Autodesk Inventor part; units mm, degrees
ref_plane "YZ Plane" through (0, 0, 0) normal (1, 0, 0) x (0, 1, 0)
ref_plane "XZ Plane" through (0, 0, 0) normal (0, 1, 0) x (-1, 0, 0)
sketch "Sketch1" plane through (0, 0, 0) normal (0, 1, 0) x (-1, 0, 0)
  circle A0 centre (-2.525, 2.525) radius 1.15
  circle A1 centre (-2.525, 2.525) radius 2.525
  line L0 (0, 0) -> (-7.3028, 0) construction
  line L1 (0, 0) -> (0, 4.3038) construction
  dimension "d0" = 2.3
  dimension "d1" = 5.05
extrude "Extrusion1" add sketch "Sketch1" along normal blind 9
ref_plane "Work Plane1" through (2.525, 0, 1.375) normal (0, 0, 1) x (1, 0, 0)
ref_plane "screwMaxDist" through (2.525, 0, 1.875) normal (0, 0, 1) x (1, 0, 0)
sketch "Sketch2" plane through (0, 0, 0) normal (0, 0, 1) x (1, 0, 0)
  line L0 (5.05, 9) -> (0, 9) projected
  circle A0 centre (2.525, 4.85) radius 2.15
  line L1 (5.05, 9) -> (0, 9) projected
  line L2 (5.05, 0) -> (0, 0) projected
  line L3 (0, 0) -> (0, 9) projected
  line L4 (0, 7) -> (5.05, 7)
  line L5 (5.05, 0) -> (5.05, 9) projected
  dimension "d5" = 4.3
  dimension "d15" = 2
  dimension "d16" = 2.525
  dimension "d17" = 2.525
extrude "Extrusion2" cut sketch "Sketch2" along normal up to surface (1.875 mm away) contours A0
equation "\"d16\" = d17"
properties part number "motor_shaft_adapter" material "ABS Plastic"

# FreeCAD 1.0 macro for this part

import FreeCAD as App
import Part
import Sketcher

V = App.Vector
Q = App.Units.Quantity

doc = App.newDocument("Part")
body = doc.addObject("PartDesign::Body", "Body")

# Sketch on XZ plane
sketch1 = doc.addObject("Sketcher::SketchObject", "Sketch")
body.addObject(sketch1)
sketch1.AttachmentSupport = (doc.XZ_Plane, [""])
sketch1.MapMode = "FlatFace"
sketch1.addGeometry([
    Part.Circle(V(2.5, 2.5, 0), V(0, 0, 1), 2.5),
    Part.Circle(V(2.5, 2.5, 0), V(0, 0, 1), 1.1),
], False)
sketch1.addConstraint([
    Sketcher.Constraint("Coincident", 1, 3, 0, 3),
    Sketcher.Constraint("Diameter", 1, Q("2.3 mm")),
    Sketcher.Constraint("Diameter", 0, Q("5.05 mm")),
    Sketcher.Constraint("DistanceX", -1, 1, 0, 3, Q("2.525 mm")),
    Sketcher.Constraint("DistanceY", -1, 1, 0, 3, Q("2.525 mm")),
])
pad1 = doc.addObject("PartDesign::Pad", "Pad")
body.addObject(pad1)
pad1.Profile = sketch1
pad1.Length = 9
pad1.Reversed = True

# Sketch on XY plane
sketch2 = doc.addObject("Sketcher::SketchObject", "Sketch001")
body.addObject(sketch2)
sketch2.AttachmentSupport = (doc.XY_Plane, [""])
sketch2.MapMode = "FlatFace"
sketch2.addGeometry(Part.Circle(V(2.5, 4.8, 0), V(0, 0, 1), 2.1), False)
sketch2.addConstraint([
    Sketcher.Constraint("Diameter", 0, Q("4.3 mm")),
    Sketcher.Constraint("DistanceX", -1, 1, 0, 3, Q("2.525 mm")),
    Sketcher.Constraint("DistanceY", -1, 1, 0, 3, Q("4.85 mm")),
])
pocket1 = doc.addObject("PartDesign::Pocket", "Pocket")
body.addObject(pocket1)
pocket1.Profile = sketch2
pocket1.Length = 1.875
pocket1.Reversed = True

doc.recompute()
